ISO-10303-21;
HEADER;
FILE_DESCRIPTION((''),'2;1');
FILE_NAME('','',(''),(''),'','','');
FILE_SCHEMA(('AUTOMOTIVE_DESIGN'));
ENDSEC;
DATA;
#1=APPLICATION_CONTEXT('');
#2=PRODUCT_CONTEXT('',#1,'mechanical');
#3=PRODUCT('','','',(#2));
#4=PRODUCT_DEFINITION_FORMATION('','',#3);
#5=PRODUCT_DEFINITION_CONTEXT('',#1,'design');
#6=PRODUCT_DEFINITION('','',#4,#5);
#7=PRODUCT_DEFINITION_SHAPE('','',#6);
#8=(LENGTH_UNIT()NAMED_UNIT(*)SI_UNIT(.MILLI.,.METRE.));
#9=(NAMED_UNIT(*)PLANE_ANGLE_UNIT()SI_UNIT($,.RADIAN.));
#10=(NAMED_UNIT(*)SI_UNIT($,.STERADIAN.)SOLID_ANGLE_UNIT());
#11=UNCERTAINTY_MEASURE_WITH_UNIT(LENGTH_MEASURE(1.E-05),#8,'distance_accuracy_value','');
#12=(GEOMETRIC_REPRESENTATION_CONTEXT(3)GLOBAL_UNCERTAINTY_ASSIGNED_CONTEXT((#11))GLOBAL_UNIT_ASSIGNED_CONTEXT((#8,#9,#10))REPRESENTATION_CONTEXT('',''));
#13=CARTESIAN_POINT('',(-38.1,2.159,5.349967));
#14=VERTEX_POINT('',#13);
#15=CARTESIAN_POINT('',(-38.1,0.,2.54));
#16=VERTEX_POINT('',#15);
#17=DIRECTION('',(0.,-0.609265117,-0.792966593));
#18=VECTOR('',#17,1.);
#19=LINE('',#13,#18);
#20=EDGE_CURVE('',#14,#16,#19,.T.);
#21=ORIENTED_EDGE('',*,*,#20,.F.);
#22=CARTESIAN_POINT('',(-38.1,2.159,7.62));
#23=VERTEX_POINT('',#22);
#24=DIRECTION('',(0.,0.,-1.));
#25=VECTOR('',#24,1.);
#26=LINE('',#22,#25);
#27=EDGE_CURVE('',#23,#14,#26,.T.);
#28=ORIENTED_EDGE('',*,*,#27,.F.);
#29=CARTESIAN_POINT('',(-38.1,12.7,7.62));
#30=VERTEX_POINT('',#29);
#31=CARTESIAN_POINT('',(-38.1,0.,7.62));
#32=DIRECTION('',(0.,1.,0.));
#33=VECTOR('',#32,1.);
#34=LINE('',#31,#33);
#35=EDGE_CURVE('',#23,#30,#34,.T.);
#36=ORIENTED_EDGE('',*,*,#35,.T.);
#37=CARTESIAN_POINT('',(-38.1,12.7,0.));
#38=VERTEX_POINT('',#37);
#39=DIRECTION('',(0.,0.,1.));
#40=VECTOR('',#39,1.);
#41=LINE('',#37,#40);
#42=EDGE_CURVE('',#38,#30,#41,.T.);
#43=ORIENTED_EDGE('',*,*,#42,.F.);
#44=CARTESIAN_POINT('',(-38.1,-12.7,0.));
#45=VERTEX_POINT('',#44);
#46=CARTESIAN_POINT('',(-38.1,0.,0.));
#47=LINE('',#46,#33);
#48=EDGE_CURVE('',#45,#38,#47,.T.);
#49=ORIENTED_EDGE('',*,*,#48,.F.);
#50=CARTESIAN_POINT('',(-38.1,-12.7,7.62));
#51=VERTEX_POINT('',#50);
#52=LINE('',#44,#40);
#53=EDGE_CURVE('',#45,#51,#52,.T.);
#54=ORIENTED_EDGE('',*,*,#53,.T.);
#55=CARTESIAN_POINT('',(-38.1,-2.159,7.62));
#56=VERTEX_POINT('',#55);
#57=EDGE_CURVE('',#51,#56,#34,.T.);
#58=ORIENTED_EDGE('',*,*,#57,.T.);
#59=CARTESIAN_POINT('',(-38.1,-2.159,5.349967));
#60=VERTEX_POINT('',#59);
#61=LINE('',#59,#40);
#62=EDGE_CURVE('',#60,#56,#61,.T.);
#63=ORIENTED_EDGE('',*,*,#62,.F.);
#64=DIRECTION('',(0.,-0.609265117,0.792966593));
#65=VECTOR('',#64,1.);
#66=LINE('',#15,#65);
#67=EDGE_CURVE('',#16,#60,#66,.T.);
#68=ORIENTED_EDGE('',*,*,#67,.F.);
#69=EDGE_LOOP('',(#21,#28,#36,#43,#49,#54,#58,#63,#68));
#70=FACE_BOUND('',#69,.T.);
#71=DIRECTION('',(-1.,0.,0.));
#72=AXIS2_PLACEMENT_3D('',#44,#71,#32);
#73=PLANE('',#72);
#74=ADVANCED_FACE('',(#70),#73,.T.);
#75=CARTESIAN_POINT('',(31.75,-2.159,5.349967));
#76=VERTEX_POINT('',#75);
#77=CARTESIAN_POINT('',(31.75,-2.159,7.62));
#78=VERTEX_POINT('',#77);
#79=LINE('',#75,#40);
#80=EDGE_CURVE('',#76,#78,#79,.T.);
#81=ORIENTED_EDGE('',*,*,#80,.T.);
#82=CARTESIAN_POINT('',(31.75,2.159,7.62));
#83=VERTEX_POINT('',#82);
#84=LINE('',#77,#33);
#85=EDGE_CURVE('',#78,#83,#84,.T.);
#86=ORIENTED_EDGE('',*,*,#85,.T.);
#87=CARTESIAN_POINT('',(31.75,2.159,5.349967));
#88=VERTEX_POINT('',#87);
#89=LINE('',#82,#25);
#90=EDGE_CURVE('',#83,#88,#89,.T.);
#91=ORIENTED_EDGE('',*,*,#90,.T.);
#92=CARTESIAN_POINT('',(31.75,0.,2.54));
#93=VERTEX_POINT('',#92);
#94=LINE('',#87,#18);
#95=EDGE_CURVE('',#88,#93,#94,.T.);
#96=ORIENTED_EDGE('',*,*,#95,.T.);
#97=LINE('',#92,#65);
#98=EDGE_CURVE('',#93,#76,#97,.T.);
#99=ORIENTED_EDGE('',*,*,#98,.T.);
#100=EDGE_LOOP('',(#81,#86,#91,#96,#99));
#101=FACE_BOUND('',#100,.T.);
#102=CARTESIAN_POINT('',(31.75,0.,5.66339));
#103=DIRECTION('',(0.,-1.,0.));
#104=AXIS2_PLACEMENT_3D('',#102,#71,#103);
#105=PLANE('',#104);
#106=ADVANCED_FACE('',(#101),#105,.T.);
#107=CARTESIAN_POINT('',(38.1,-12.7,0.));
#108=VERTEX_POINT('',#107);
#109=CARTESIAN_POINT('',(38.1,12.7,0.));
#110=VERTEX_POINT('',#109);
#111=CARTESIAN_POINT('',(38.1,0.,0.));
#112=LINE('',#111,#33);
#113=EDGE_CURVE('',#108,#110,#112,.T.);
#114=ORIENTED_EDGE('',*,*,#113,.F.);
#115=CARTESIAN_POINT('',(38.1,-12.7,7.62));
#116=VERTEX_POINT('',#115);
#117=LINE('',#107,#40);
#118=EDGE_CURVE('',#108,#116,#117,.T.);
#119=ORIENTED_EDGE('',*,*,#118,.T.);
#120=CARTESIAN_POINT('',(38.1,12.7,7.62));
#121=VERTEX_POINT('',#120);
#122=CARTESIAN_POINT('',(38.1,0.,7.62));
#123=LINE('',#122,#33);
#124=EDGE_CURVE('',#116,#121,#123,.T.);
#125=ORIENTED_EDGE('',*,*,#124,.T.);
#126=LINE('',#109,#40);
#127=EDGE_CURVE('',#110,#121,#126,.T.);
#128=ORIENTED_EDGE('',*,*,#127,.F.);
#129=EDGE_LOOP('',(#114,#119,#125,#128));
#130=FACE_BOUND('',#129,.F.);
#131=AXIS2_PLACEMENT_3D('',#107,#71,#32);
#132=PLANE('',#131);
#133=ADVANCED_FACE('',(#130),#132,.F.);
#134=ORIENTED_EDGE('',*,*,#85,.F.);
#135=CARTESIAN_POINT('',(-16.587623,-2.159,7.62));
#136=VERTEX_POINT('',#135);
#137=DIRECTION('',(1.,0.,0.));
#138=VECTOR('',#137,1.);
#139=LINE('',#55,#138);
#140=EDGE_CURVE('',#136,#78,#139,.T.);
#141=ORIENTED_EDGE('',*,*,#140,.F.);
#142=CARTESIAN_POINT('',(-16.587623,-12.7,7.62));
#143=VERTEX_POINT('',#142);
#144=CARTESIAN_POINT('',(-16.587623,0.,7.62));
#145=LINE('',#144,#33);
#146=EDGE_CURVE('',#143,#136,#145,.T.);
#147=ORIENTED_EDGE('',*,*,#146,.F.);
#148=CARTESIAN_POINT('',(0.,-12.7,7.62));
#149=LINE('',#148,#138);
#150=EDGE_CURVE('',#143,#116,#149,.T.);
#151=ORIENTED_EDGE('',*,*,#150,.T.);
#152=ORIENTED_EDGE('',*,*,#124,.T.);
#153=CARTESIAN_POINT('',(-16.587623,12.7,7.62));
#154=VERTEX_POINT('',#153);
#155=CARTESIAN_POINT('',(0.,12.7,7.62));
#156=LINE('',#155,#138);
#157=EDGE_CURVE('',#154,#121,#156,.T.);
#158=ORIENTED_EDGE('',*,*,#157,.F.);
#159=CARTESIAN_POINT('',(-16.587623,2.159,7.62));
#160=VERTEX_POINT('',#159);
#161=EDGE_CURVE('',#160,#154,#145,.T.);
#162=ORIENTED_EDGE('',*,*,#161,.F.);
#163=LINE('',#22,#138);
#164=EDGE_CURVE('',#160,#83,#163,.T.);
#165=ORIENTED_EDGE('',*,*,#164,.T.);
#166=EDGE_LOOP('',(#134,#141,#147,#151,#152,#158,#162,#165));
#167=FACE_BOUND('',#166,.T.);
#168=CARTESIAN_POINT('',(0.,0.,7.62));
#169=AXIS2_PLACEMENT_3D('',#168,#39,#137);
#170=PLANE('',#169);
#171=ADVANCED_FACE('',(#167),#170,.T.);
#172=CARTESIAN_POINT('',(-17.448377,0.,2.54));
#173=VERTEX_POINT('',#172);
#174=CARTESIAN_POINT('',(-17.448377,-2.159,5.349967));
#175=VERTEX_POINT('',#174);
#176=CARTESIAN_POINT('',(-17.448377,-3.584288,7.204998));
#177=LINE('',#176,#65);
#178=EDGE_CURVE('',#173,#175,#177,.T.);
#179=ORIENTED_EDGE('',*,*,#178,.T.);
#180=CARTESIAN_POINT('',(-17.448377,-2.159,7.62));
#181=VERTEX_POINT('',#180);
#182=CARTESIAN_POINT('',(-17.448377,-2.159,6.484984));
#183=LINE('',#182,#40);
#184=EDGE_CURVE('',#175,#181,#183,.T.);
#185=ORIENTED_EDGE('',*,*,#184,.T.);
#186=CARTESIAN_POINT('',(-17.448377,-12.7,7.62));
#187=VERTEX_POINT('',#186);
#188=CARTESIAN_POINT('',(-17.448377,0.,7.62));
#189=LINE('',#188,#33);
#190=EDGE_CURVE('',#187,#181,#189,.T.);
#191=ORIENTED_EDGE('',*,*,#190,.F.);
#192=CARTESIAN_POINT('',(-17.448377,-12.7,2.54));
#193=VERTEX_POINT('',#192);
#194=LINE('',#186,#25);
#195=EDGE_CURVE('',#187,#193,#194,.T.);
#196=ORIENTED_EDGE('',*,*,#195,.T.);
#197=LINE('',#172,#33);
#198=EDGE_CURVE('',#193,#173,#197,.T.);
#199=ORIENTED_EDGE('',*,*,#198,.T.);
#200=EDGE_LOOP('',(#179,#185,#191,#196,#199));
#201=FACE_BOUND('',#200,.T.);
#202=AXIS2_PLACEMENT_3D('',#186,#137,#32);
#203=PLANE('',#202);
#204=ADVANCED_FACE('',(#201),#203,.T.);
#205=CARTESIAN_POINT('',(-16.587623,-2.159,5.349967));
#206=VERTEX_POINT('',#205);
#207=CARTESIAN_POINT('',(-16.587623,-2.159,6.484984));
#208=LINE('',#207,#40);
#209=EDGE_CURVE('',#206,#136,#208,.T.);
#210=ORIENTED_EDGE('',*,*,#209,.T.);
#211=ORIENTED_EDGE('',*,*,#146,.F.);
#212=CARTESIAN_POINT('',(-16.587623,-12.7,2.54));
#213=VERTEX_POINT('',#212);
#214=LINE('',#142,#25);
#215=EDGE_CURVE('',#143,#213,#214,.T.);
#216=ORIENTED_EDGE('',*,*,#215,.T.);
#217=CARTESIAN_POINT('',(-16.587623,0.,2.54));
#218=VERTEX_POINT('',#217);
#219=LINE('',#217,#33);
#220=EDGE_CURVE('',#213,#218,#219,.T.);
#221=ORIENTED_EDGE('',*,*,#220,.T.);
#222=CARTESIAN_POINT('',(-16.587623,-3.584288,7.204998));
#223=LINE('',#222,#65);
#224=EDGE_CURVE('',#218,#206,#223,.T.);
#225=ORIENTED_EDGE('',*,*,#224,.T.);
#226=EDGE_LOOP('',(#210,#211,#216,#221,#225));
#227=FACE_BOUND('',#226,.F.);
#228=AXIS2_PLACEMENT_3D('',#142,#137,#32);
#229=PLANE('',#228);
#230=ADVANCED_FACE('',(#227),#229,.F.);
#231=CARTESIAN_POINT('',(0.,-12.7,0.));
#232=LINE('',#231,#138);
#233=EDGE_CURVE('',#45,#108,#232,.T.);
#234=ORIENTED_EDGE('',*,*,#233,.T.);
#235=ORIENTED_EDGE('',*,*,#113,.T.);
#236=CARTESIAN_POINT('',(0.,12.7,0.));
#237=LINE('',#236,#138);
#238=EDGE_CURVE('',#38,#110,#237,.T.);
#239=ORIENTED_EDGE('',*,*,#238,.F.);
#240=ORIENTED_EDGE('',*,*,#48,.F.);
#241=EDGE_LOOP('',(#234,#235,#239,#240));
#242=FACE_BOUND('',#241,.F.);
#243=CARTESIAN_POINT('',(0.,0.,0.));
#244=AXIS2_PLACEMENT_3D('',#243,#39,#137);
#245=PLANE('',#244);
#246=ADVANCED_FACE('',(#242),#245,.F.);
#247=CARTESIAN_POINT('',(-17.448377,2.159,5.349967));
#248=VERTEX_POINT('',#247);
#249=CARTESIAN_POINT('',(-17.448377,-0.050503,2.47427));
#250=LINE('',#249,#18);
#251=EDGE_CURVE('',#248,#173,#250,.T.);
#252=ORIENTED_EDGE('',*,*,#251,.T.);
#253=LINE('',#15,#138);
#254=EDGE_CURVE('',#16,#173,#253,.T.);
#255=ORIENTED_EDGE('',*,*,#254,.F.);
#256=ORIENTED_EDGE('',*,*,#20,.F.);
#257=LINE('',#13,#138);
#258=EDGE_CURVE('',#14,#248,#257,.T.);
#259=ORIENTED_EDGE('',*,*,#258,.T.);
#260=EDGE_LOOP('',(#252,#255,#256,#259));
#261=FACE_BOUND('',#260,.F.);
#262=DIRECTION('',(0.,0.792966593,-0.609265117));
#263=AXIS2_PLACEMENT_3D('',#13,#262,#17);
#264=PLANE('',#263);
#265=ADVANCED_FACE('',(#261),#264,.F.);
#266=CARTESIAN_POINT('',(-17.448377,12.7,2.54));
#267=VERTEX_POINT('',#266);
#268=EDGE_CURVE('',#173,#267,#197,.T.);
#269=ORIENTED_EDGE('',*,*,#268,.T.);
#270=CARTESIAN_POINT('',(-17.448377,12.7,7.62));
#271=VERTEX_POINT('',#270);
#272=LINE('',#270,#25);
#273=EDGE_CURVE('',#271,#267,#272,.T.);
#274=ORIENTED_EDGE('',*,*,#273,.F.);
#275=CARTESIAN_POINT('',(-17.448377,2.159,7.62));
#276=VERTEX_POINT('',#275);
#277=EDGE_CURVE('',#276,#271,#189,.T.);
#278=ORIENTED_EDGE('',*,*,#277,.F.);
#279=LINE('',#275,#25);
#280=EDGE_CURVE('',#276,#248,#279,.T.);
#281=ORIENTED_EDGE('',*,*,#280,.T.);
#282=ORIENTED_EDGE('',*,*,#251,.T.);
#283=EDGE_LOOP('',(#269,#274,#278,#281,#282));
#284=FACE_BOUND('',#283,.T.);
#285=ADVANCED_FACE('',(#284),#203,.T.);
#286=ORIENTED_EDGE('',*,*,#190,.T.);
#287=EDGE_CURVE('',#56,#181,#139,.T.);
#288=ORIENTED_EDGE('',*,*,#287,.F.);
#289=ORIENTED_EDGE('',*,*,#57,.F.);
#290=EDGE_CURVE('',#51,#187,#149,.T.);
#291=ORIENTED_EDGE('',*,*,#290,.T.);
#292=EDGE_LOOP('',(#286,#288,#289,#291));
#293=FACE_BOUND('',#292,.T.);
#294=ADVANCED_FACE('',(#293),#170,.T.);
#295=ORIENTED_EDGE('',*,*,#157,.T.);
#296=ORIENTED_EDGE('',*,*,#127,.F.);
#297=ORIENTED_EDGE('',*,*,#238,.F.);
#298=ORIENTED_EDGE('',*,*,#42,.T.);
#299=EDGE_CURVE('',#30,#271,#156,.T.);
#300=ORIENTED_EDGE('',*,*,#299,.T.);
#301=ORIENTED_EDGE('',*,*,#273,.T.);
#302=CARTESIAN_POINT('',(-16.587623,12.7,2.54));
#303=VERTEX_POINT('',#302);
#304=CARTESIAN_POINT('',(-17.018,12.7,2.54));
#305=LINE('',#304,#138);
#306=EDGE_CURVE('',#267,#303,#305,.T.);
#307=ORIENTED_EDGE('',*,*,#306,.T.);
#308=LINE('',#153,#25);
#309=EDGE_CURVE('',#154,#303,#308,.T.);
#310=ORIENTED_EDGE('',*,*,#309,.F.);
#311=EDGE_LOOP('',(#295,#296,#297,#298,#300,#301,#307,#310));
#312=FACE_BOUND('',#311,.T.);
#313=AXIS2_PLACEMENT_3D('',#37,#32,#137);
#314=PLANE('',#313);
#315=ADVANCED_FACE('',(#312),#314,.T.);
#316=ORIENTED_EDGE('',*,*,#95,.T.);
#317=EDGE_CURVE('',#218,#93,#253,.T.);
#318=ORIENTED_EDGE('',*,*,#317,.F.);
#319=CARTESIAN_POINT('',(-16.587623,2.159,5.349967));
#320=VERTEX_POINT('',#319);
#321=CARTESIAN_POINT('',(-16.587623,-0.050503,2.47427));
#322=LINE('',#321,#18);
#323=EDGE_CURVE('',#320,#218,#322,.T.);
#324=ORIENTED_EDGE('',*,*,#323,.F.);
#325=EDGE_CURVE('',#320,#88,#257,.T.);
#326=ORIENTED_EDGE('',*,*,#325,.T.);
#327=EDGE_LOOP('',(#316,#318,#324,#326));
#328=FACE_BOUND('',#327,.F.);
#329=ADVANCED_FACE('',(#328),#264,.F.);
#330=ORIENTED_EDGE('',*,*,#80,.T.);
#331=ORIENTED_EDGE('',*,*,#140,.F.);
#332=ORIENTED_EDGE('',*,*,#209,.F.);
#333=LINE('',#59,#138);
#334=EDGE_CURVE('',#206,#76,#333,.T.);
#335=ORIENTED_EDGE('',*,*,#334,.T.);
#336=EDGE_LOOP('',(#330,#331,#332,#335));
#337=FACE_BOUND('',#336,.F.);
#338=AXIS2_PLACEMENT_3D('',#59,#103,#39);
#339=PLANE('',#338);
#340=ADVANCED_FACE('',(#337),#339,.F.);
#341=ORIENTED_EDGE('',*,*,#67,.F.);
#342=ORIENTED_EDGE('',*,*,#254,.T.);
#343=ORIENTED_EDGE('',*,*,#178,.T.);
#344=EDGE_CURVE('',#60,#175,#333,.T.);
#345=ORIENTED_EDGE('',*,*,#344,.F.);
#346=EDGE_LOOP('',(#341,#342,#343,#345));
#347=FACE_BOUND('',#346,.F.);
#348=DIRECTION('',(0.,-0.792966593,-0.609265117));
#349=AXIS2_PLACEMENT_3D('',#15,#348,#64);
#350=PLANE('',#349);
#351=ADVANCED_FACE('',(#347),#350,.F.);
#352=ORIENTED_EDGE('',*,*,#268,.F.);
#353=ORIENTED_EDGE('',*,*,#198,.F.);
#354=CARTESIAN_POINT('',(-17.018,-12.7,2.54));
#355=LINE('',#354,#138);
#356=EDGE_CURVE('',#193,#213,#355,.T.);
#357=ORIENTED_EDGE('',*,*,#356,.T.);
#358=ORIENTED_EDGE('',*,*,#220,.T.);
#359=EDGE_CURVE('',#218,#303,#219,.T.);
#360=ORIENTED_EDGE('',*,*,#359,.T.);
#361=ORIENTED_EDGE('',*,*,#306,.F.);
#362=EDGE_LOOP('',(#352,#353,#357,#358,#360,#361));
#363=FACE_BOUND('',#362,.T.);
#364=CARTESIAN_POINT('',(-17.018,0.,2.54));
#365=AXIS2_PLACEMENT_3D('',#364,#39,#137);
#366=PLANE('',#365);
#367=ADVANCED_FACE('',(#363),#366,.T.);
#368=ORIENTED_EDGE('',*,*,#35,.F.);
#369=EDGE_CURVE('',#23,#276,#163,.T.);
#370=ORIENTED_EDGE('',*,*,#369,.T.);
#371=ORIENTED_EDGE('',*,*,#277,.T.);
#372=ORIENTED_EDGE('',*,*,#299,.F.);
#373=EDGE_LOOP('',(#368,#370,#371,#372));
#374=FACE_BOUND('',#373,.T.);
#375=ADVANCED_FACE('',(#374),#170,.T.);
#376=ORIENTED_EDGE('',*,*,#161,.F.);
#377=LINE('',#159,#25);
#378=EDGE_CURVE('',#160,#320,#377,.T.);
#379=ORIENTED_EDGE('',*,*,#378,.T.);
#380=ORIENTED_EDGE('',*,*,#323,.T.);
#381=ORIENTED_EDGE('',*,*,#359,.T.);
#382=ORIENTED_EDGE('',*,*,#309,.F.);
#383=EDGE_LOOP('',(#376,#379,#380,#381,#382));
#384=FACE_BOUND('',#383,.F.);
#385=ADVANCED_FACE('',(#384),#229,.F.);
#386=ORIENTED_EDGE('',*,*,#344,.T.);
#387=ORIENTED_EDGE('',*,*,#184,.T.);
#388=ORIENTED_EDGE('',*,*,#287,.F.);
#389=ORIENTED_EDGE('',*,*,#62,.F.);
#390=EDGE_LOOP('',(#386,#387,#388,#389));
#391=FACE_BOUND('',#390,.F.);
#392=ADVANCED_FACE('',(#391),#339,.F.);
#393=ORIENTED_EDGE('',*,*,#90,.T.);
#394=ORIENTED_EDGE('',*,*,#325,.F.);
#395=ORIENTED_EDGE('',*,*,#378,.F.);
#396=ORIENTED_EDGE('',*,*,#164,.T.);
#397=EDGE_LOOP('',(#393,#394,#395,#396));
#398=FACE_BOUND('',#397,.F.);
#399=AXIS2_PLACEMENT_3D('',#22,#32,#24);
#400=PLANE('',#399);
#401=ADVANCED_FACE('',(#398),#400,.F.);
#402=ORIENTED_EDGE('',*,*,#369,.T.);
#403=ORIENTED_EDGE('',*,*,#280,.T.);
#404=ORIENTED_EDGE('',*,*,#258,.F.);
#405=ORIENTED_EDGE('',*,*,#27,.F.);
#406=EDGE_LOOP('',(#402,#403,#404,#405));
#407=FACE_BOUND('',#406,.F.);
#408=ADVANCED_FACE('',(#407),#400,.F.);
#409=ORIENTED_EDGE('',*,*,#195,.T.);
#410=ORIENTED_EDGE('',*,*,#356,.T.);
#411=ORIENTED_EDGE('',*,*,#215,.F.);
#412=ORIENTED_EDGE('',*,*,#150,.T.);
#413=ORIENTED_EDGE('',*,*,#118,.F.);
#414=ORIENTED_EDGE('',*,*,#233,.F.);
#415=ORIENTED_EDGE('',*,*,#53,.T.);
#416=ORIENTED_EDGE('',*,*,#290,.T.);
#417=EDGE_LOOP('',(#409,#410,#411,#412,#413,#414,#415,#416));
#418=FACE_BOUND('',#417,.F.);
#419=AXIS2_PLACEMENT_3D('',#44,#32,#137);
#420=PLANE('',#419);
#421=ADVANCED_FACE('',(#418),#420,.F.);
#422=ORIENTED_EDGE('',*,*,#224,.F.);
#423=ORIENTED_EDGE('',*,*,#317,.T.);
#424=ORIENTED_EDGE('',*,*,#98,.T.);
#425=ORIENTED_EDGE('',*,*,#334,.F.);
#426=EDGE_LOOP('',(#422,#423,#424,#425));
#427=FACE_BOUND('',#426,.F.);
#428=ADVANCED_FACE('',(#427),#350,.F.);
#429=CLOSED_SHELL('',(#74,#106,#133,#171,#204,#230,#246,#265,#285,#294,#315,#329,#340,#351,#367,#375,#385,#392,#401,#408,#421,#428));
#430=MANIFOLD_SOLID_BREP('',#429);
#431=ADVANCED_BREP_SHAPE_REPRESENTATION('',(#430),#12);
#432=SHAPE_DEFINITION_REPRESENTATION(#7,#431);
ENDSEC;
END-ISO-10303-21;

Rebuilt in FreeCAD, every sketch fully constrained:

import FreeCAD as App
import Part
import Sketcher

V = App.Vector
Q = App.Units.Quantity

doc = App.newDocument("Part")
body = doc.addObject("PartDesign::Body", "Body")

# Sketch on XY plane
sketch1 = doc.addObject("Sketcher::SketchObject", "Sketch")
body.addObject(sketch1)
sketch1.AttachmentSupport = (doc.XY_Plane, [""])
sketch1.MapMode = "FlatFace"
sketch1.addGeometry(Part.LineSegment(V(-38.1, 12.7, 0), V(-38.1, -12.7, 0)), False)
sketch1.addGeometry(Part.LineSegment(V(-38.1, -12.7, 0), V(38.1, -12.7, 0)), False)
sketch1.addGeometry(Part.LineSegment(V(38.1, -12.7, 0), V(38.1, 12.7, 0)), False)
sketch1.addGeometry(Part.LineSegment(V(38.1, 12.7, 0), V(-38.1, 12.7, 0)), False)
sketch1.addConstraint(Sketcher.Constraint("Coincident", 0, 2, 1, 1))
sketch1.addConstraint(Sketcher.Constraint("Coincident", 1, 2, 2, 1))
sketch1.addConstraint(Sketcher.Constraint("Coincident", 2, 2, 3, 1))
sketch1.addConstraint(Sketcher.Constraint("Coincident", 3, 2, 0, 1))
sketch1.addConstraint(Sketcher.Constraint("Vertical", 0))
sketch1.addConstraint(Sketcher.Constraint("Horizontal", 1))
sketch1.addConstraint(Sketcher.Constraint("Vertical", 2))
sketch1.addConstraint(Sketcher.Constraint("Horizontal", 3))
sketch1.addConstraint(Sketcher.Constraint("Symmetric", 0, 2, 2, 2, -1, 1))
sketch1.addConstraint(Sketcher.Constraint("DistanceX", 1, 1, 1, 2, Q("3 in")))
sketch1.addConstraint(Sketcher.Constraint("DistanceY", 0, 2, 0, 1, Q("1 in")))
pad1 = doc.addObject("PartDesign::Pad", "Pad")
body.addObject(pad1)
pad1.Profile = sketch1
pad1.Length = Q("0.3 in")

# Sketch on YZ plane
sketch2 = doc.addObject("Sketcher::SketchObject", "Sketch001")
body.addObject(sketch2)
sketch2.AttachmentSupport = (doc.YZ_Plane, [""])
sketch2.MapMode = "FlatFace"
sketch2.AttachmentOffset = App.Placement(V(0, 0, -1.5 * 25.4), App.Rotation())
sketch2.addGeometry(Part.LineSegment(V(-2.159, 7.62, 0), V(2.159, 7.62, 0)), False)
sketch2.addGeometry(Part.LineSegment(V(2.159, 7.62, 0), V(2.159, 5.349967, 0)), False)
sketch2.addGeometry(Part.LineSegment(V(2.159, 5.349967, 0), V(0, 2.54, 0)), False)
sketch2.addGeometry(Part.LineSegment(V(0, 2.54, 0), V(-2.159, 5.349967, 0)), False)
sketch2.addGeometry(Part.LineSegment(V(-2.159, 5.349967, 0), V(-2.159, 7.62, 0)), False)
sketch2.addConstraint(Sketcher.Constraint("Coincident", 0, 2, 1, 1))
sketch2.addConstraint(Sketcher.Constraint("Coincident", 1, 2, 2, 1))
sketch2.addConstraint(Sketcher.Constraint("Coincident", 2, 2, 3, 1))
sketch2.addConstraint(Sketcher.Constraint("Coincident", 3, 2, 4, 1))
sketch2.addConstraint(Sketcher.Constraint("Coincident", 4, 2, 0, 1))
sketch2.addConstraint(Sketcher.Constraint("Horizontal", 0))
sketch2.addConstraint(Sketcher.Constraint("Vertical", 1))
sketch2.addConstraint(Sketcher.Constraint("Vertical", 4))
sketch2.addConstraint(Sketcher.Constraint("Symmetric", 1, 2, 3, 2, -2))
sketch2.addConstraint(Sketcher.Constraint("PointOnObject", 2, 2, -2))
sketch2.addConstraint(Sketcher.Constraint("DistanceX", 0, 1, 0, 2, Q("0.17 in")))
sketch2.addConstraint(Sketcher.Constraint("DistanceY", -1, 1, 0, 2, Q("0.3 in")))
sketch2.addConstraint(Sketcher.Constraint("DistanceY", -1, 1, 2, 2, Q("0.1 in")))
sketch2.addConstraint(Sketcher.Constraint("DistanceY", 1, 2, 1, 1, Q("2.270033 mm")))
pocket1 = doc.addObject("PartDesign::Pocket", "Pocket")
body.addObject(pocket1)
pocket1.Profile = sketch2
pocket1.Length = Q("2.75 in")
pocket1.Reversed = True

# Sketch on XY plane
sketch3 = doc.addObject("Sketcher::SketchObject", "Sketch002")
body.addObject(sketch3)
sketch3.AttachmentSupport = (doc.XY_Plane, [""])
sketch3.MapMode = "FlatFace"
sketch3.AttachmentOffset = App.Placement(V(0, 0, 0.3 * 25.4), App.Rotation())
sketch3.addGeometry(Part.LineSegment(V(-17.448377, 12.7, 0), V(-17.448377, -12.7, 0)), False)
sketch3.addGeometry(Part.LineSegment(V(-17.448377, -12.7, 0), V(-16.587623, -12.7, 0)), False)
sketch3.addGeometry(Part.LineSegment(V(-16.587623, -12.7, 0), V(-16.587623, 12.7, 0)), False)
sketch3.addGeometry(Part.LineSegment(V(-16.587623, 12.7, 0), V(-17.448377, 12.7, 0)), False)
sketch3.addConstraint(Sketcher.Constraint("Coincident", 0, 2, 1, 1))
sketch3.addConstraint(Sketcher.Constraint("Coincident", 1, 2, 2, 1))
sketch3.addConstraint(Sketcher.Constraint("Coincident", 2, 2, 3, 1))
sketch3.addConstraint(Sketcher.Constraint("Coincident", 3, 2, 0, 1))
sketch3.addConstraint(Sketcher.Constraint("Vertical", 0))
sketch3.addConstraint(Sketcher.Constraint("Horizontal", 1))
sketch3.addConstraint(Sketcher.Constraint("Vertical", 2))
sketch3.addConstraint(Sketcher.Constraint("Horizontal", 3))
sketch3.addConstraint(Sketcher.Constraint("DistanceY", 0, 2, 0, 1, Q("1 in")))
sketch3.addConstraint(Sketcher.Constraint("DistanceY", 0, 2, -1, 1, Q("0.5 in")))
sketch3.addConstraint(Sketcher.Constraint("DistanceX", 1, 1, 1, 2, Q("0.860754 mm")))
sketch3.addConstraint(Sketcher.Constraint("DistanceX", 0, 2, -1, 1, Q("17.448377 mm")))
pocket2 = doc.addObject("PartDesign::Pocket", "Pocket001")
body.addObject(pocket2)
pocket2.Profile = sketch3
pocket2.Length = Q("0.2 in")

doc.recompute()
